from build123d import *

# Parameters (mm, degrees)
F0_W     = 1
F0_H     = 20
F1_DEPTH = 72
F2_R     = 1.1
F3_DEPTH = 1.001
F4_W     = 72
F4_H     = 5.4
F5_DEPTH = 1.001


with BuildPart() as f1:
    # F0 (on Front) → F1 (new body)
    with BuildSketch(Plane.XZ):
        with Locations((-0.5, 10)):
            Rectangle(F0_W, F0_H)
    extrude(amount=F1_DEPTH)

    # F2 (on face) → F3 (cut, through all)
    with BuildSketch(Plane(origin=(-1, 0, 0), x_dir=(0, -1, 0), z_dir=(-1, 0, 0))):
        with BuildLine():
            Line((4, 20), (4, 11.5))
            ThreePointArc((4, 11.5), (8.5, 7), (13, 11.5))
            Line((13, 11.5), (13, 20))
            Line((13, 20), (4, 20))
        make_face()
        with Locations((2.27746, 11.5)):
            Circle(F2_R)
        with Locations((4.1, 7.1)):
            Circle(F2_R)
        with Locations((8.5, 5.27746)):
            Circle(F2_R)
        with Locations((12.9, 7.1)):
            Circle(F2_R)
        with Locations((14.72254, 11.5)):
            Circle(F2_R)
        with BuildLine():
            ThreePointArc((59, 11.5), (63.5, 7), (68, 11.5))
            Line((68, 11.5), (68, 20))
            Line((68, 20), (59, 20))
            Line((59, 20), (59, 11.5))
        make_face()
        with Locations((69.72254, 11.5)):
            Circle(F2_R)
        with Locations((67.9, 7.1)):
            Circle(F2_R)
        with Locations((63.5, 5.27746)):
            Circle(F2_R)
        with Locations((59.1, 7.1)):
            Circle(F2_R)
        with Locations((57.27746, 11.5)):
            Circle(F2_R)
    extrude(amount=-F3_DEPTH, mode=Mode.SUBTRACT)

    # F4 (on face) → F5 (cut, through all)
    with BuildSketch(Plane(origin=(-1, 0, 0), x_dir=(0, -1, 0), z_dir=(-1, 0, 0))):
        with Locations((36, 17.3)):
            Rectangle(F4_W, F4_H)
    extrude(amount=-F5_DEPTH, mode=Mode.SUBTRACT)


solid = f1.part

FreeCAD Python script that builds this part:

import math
import FreeCAD as App
import Part
import Sketcher

V = App.Vector
Q = App.Units.Quantity


def add_polygon(sketch, points):
    """Adds a closed chain of lines whose ends are joined by coincident constraints."""
    first, n = sketch.GeometryCount, len(points)
    for a, b in zip(points, points[1:] + points[:1]):
        sketch.addGeometry(Part.LineSegment(App.Vector(*a, 0), App.Vector(*b, 0)), False)
    for i in range(n):
        sketch.addConstraint(Sketcher.Constraint("Coincident", first + i, 2, first + (i + 1) % n, 1))

doc = App.newDocument("Part")
params = doc.addObject("Spreadsheet::Sheet", "Params")
for row, (alias, value) in enumerate([
    ("sketch1_width", "1 mm"),
    ("sketch1_height", "20 mm"),
    ("pad1_length", "72 mm"),
    ("sketch2_diameter", "2.2 mm"),
    ("sketch2_radius", "4.5 mm"),
    ("sketch2_height", "8.5 mm"),
    ("sketch3_width", "72 mm"),
    ("sketch3_height", "5.4 mm"),
], start=1):
    params.set(f"A{row}", alias)
    params.set(f"B{row}", "=" + value)
    params.setAlias(f"B{row}", alias)

body = doc.addObject("PartDesign::Body", "Body")

sketch1 = doc.addObject("Sketcher::SketchObject", "Sketch")
body.addObject(sketch1)
sketch1.AttachmentSupport = (doc.XZ_Plane, [""])
sketch1.MapMode = "FlatFace"
add_polygon(sketch1, [(-1, 20), (-1, 0), (0, 0), (0, 20)])
sketch1.addConstraint([
    Sketcher.Constraint("Vertical", 0),
    Sketcher.Constraint("Horizontal", 1),
    Sketcher.Constraint("Vertical", 2),
    Sketcher.Constraint("Horizontal", 3),
    Sketcher.Constraint("Coincident", 1, 2, -1, 1),
    Sketcher.Constraint("DistanceX", 1, 1, 1, 2, Q("1 mm")),
    Sketcher.Constraint("DistanceY", 0, 2, 0, 1, Q("20 mm")),
])
sketch1.setExpression("Constraints[9]", "Params.sketch1_width")
sketch1.setExpression("Constraints[10]", "Params.sketch1_height")
pad1 = doc.addObject("PartDesign::Pad", "Pad")
body.addObject(pad1)
pad1.Profile = sketch1
pad1.setExpression("Length", "Params.pad1_length")

sketch2 = doc.addObject("Sketcher::SketchObject", "Sketch001")
body.addObject(sketch2)
sketch2.AttachmentSupport = (doc.YZ_Plane, [""])
sketch2.MapMode = "FlatFace"
sketch2.AttachmentOffset = App.Placement(V(0, 0, -1), App.Rotation())
sketch2.addGeometry([
    Part.LineSegment(V(-4, 20, 0), V(-4, 11.5, 0)),
    Part.ArcOfCircle(Part.Circle(V(-8.5, 11.5, 0), V(0, 0, 1), 4.5), math.radians(180), math.radians(360)),
    Part.LineSegment(V(-13, 11.5, 0), V(-13, 20, 0)),
    Part.LineSegment(V(-13, 20, 0), V(-4, 20, 0)),
    Part.Circle(V(-2.3, 11.5, 0), V(0, 0, 1), 1.1),
    Part.Circle(V(-4.1, 7.1, 0), V(0, 0, 1), 1.1),
    Part.Circle(V(-8.5, 5.3, 0), V(0, 0, 1), 1.1),
    Part.Circle(V(-12.9, 7.1, 0), V(0, 0, 1), 1.1),
    Part.Circle(V(-14.7, 11.5, 0), V(0, 0, 1), 1.1),
    Part.ArcOfCircle(Part.Circle(V(-63.5, 11.5, 0), V(0, 0, 1), 4.5), math.radians(180), math.radians(360)),
    Part.LineSegment(V(-68, 11.5, 0), V(-68, 20, 0)),
    Part.LineSegment(V(-68, 20, 0), V(-59, 20, 0)),
    Part.LineSegment(V(-59, 20, 0), V(-59, 11.5, 0)),
    Part.Circle(V(-69.7, 11.5, 0), V(0, 0, 1), 1.1),
    Part.Circle(V(-67.9, 7.1, 0), V(0, 0, 1), 1.1),
    Part.Circle(V(-63.5, 5.3, 0), V(0, 0, 1), 1.1),
    Part.Circle(V(-59.1, 7.1, 0), V(0, 0, 1), 1.1),
    Part.Circle(V(-57.3, 11.5, 0), V(0, 0, 1), 1.1),
], False)
sketch2.addConstraint([
    Sketcher.Constraint("Tangent", 0, 2, 1, 2),
    Sketcher.Constraint("Tangent", 1, 1, 2, 1),
    Sketcher.Constraint("Coincident", 2, 2, 3, 1),
    Sketcher.Constraint("Coincident", 3, 2, 0, 1),
    Sketcher.Constraint("Tangent", 9, 1, 10, 1),
    Sketcher.Constraint("Coincident", 10, 2, 11, 1),
    Sketcher.Constraint("Coincident", 11, 2, 12, 1),
    Sketcher.Constraint("Tangent", 12, 2, 9, 2),
    Sketcher.Constraint("Vertical", 0),
    Sketcher.Constraint("Vertical", 2),
    Sketcher.Constraint("Horizontal", 3),
    Sketcher.Constraint("Vertical", 10),
    Sketcher.Constraint("Horizontal", 11),
    Sketcher.Constraint("Vertical", 12),
    Sketcher.Constraint("Equal", 4, 5),
    Sketcher.Constraint("Equal", 5, 6),
    Sketcher.Constraint("Equal", 6, 7),
    Sketcher.Constraint("Equal", 7, 8),
    Sketcher.Constraint("Equal", 1, 9),
    Sketcher.Constraint("Equal", 8, 13),
    Sketcher.Constraint("Equal", 13, 14),
    Sketcher.Constraint("Equal", 14, 15),
    Sketcher.Constraint("Equal", 15, 16),
    Sketcher.Constraint("Equal", 16, 17),
    Sketcher.Constraint("Horizontal", 1, 3, 4, 3),
    Sketcher.Constraint("Horizontal", 5, 3, 7, 3),
    Sketcher.Constraint("Horizontal", 4, 3, 8, 3),
    Sketcher.Constraint("Horizontal", 8, 3, 9, 3),
    Sketcher.Constraint("Horizontal", 9, 3, 13, 3),
    Sketcher.Constraint("Horizontal", 7, 3, 14, 3),
    Sketcher.Constraint("Horizontal", 6, 3, 15, 3),
    Sketcher.Constraint("Horizontal", 14, 3, 16, 3),
    Sketcher.Constraint("Horizontal", 13, 3, 17, 3),
    Sketcher.Constraint("Horizontal", 3, 2, 10, 2),
    Sketcher.Constraint("Vertical", 1, 3, 6, 3),
    Sketcher.Constraint("Vertical", 9, 3, 15, 3),
    Sketcher.Constraint("Diameter", 4, Q("2.2 mm")),
    Sketcher.Constraint("Radius", 1, Q("4.5 mm")),
    Sketcher.Constraint("DistanceY", 0, 2, 0, 1, Q("8.5 mm")),
    Sketcher.Constraint("DistanceX", 0, 2, -1, 1, Q("4 mm")),
    Sketcher.Constraint("DistanceY", -1, 1, 2, 2, Q("20 mm")),
    Sketcher.Constraint("DistanceX", 9, 1, -1, 1, Q("68 mm")),
    Sketcher.Constraint("DistanceX", 13, 3, 8, 3, Q("55 mm")),
    Sketcher.Constraint("DistanceX", 14, 3, 7, 3, Q("55 mm")),
    Sketcher.Constraint("DistanceX", 5, 3, -1, 1, Q("4.1 mm")),
    Sketcher.Constraint("DistanceY", -1, 1, 5, 3, Q("7.1 mm")),
    Sketcher.Constraint("DistanceX", 7, 3, -1, 1, Q("12.9 mm")),
    Sketcher.Constraint("DistanceX", 16, 3, -1, 1, Q("59.1 mm")),
    Sketcher.Constraint("DistanceX", 4, 3, -1, 1, Q("2.27746 mm")),
    Sketcher.Constraint("DistanceY", -1, 1, 6, 3, Q("5.27746 mm")),
    Sketcher.Constraint("DistanceX", 8, 3, -1, 1, Q("14.72254 mm")),
    Sketcher.Constraint("DistanceX", 17, 3, -1, 1, Q("57.27746 mm")),
])
sketch2.setExpression("Constraints[36]", "Params.sketch2_diameter")
sketch2.setExpression("Constraints[37]", "Params.sketch2_radius")
sketch2.setExpression("Constraints[38]", "Params.sketch2_height")
pocket1 = doc.addObject("PartDesign::Pocket", "Pocket")
body.addObject(pocket1)
pocket1.Profile = sketch2
pocket1.Type = "ThroughAll"
pocket1.Reversed = True

sketch3 = doc.addObject("Sketcher::SketchObject", "Sketch002")
body.addObject(sketch3)
sketch3.AttachmentSupport = (doc.YZ_Plane, [""])
sketch3.MapMode = "FlatFace"
sketch3.AttachmentOffset = App.Placement(V(0, 0, -1), App.Rotation())
add_polygon(sketch3, [(0, 20), (0, 15), (-72, 15), (-72, 20)])
sketch3.addConstraint([
    Sketcher.Constraint("Vertical", 0),
    Sketcher.Constraint("Horizontal", 1),
    Sketcher.Constraint("Vertical", 2),
    Sketcher.Constraint("Horizontal", 3),
    Sketcher.Constraint("PointOnObject", 0, 2, -2),
    Sketcher.Constraint("DistanceX", 1, 2, 1, 1, Q("72 mm")),
    Sketcher.Constraint("DistanceY", 0, 2, 0, 1, Q("5.4 mm")),
    Sketcher.Constraint("DistanceY", -1, 1, 2, 2, Q("20 mm")),
])
sketch3.setExpression("Constraints[9]", "Params.sketch3_width")
sketch3.setExpression("Constraints[10]", "Params.sketch3_height")
pocket2 = doc.addObject("PartDesign::Pocket", "Pocket001")
body.addObject(pocket2)
pocket2.Profile = sketch3
pocket2.Type = "ThroughAll"
pocket2.Reversed = True

doc.recompute()
